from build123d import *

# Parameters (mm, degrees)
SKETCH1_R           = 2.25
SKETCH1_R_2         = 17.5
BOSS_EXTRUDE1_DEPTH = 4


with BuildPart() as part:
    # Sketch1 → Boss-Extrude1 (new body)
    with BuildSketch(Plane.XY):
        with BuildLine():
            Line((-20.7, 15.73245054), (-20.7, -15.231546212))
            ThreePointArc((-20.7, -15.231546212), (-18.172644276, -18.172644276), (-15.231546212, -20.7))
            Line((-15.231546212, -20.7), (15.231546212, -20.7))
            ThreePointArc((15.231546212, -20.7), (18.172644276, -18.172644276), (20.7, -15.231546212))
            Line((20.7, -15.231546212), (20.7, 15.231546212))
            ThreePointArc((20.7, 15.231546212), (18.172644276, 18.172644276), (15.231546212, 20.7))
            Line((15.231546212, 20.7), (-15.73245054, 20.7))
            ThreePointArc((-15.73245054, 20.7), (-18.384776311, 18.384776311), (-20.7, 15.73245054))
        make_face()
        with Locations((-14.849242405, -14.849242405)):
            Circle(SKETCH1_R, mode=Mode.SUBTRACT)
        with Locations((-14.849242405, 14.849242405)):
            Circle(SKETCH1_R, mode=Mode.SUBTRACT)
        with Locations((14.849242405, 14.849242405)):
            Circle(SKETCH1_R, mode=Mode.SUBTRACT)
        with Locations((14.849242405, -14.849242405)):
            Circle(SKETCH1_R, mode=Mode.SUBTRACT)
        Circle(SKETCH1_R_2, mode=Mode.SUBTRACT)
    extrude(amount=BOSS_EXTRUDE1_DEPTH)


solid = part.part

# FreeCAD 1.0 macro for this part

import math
import FreeCAD as App
import Part
import Sketcher
from FreeCAD import Vector

doc = App.newDocument("Part")
body = doc.addObject("PartDesign::Body", "Body")

# Sketch on XY plane
sketch1 = body.newObject("Sketcher::SketchObject", "Sketch")
sketch1.AttachmentSupport = (doc.getObject("XY_Plane"), [""])
sketch1.MapMode = "FlatFace"
sketch1.addGeometry(Part.LineSegment(Vector(-20.7, 15.732451, 0), Vector(-20.7, -15.231546, 0)), False)
sketch1.addGeometry(Part.ArcOfCircle(Part.Circle(Vector(0, 0, 0), Vector(0, 0, 1), 25.7), math.radians(-143.653492), math.radians(-126.346508)), False)
sketch1.addGeometry(Part.LineSegment(Vector(-15.231546, -20.7, 0), Vector(15.231546, -20.7, 0)), False)
sketch1.addGeometry(Part.ArcOfCircle(Part.Circle(Vector(0, 0, 0), Vector(0, 0, 1), 25.7), math.radians(-53.653492), math.radians(-36.346508)), False)
sketch1.addGeometry(Part.LineSegment(Vector(20.7, -15.231546, 0), Vector(20.7, 15.231546, 0)), False)
sketch1.addGeometry(Part.ArcOfCircle(Part.Circle(Vector(0, 0, 0), Vector(0, 0, 1), 25.7), math.radians(36.346508), math.radians(53.653492)), False)
sketch1.addGeometry(Part.LineSegment(Vector(15.231546, 20.7, 0), Vector(-15.732451, 20.7, 0)), False)
sketch1.addGeometry(Part.ArcOfCircle(Part.Circle(Vector(0, 0, 0), Vector(0, 0, 1), 26), math.radians(127.235624), math.radians(142.764376)), False)
sketch1.addGeometry(Part.Circle(Vector(-14.849242, -14.849242, 0), Vector(0, 0, 1), 2.25), False)
sketch1.addGeometry(Part.Circle(Vector(14.849242, -14.849242, 0), Vector(0, 0, 1), 2.25), False)
sketch1.addGeometry(Part.Circle(Vector(-14.849242, 14.849242, 0), Vector(0, 0, 1), 2.25), False)
sketch1.addGeometry(Part.Circle(Vector(0, 0, 0), Vector(0, 0, 1), 17.5), False)
sketch1.addGeometry(Part.Circle(Vector(14.849242, 14.849242, 0), Vector(0, 0, 1), 2.25), False)
sketch1.addConstraint(Sketcher.Constraint("Coincident", 0, 2, 1, 1))
sketch1.addConstraint(Sketcher.Constraint("Coincident", 1, 2, 2, 1))
sketch1.addConstraint(Sketcher.Constraint("Coincident", 2, 2, 3, 1))
sketch1.addConstraint(Sketcher.Constraint("Coincident", 3, 2, 4, 1))
sketch1.addConstraint(Sketcher.Constraint("Coincident", 4, 2, 5, 1))
sketch1.addConstraint(Sketcher.Constraint("Coincident", 5, 2, 6, 1))
sketch1.addConstraint(Sketcher.Constraint("Coincident", 6, 2, 7, 1))
sketch1.addConstraint(Sketcher.Constraint("Coincident", 7, 2, 0, 1))
sketch1.addConstraint(Sketcher.Constraint("Vertical", 0))
sketch1.addConstraint(Sketcher.Constraint("Horizontal", 2))
sketch1.addConstraint(Sketcher.Constraint("Vertical", 4))
sketch1.addConstraint(Sketcher.Constraint("Horizontal", 6))
sketch1.addConstraint(Sketcher.Constraint("Coincident", 1, 3, -1, 1))
sketch1.addConstraint(Sketcher.Constraint("Coincident", 3, 3, -1, 1))
sketch1.addConstraint(Sketcher.Constraint("Coincident", 5, 3, -1, 1))
sketch1.addConstraint(Sketcher.Constraint("Coincident", 7, 3, -1, 1))
sketch1.addConstraint(Sketcher.Constraint("Coincident", 11, 3, -1, 1))
sketch1.addConstraint(Sketcher.Constraint("Equal", 1, 3))
sketch1.addConstraint(Sketcher.Constraint("Equal", 3, 5))
sketch1.addConstraint(Sketcher.Constraint("Equal", 8, 9))
sketch1.addConstraint(Sketcher.Constraint("Equal", 9, 10))
sketch1.addConstraint(Sketcher.Constraint("Equal", 10, 12))
sketch1.addConstraint(Sketcher.Constraint("Symmetric", 9, 3, 10, 3, -1, 1))
sketch1.addConstraint(Sketcher.Constraint("Symmetric", 8, 3, 12, 3, -1, 1))
sketch1.addConstraint(Sketcher.Constraint("Symmetric", 8, 3, 9, 3, -2))
sketch1.addConstraint(Sketcher.Constraint("Horizontal", 0, 2, 3, 2))
sketch1.addConstraint(Sketcher.Constraint("Vertical", 2, 2, 5, 2))
sketch1.addConstraint(Sketcher.Constraint("Equal", 6, 0))
sketch1.addConstraint(Sketcher.Constraint("Diameter", 11, 35.0))
sketch1.addConstraint(Sketcher.Constraint("Radius", 7, 26.0))
sketch1.addConstraint(Sketcher.Constraint("Diameter", 8, 4.5))
sketch1.addConstraint(Sketcher.Constraint("Radius", 1, 25.7))
sketch1.addConstraint(Sketcher.Constraint("DistanceX", 0, 2, -1, 1, 20.7))
sketch1.addConstraint(Sketcher.Constraint("DistanceX", 6, 2, 10, 3, 0.883208))
sketch1.addConstraint(Sketcher.Constraint("DistanceY", 10, 3, 7, 2, 0.883208))
pad1 = body.newObject("PartDesign::Pad", "Pad")
pad1.Profile = sketch1
pad1.Length = 4

doc.recompute()
